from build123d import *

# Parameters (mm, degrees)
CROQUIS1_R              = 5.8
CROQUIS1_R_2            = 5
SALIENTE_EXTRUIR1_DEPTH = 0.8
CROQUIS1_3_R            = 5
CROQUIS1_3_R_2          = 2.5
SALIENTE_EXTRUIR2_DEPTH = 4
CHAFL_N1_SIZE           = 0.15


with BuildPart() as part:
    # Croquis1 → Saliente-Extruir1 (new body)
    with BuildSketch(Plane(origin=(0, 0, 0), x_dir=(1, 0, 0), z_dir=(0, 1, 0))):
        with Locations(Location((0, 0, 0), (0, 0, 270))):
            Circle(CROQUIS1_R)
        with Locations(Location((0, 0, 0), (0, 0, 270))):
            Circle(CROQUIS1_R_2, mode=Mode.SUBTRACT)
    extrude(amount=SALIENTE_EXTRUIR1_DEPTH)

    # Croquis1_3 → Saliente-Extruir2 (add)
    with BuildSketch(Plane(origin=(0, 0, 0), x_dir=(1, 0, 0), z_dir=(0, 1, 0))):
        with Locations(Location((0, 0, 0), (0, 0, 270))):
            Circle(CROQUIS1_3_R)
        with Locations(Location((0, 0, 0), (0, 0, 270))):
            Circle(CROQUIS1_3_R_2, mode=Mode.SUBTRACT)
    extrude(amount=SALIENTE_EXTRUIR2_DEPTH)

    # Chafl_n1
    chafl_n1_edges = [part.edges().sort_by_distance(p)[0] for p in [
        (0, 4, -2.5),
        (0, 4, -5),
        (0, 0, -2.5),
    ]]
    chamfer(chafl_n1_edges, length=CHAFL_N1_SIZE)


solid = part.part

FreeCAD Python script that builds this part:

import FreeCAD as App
import Part
import Sketcher


def edges_at(feature, points):
    """Names of the edges that pass closest to the given points."""
    edges = feature.Shape.Edges
    near = lambda p: min(range(len(edges)), key=lambda i: edges[i].distToShape(Part.Vertex(*p))[0])
    return sorted({f"Edge{near(p) + 1}" for p in points})

doc = App.newDocument("Part")
body = doc.addObject("PartDesign::Body", "Body")

sketch1 = body.newObject("Sketcher::SketchObject", "Sketch")
sketch1.AttachmentSupport = (doc.getObject("XZ_Plane"), [""])
sketch1.MapMode = "FlatFace"
sketch1.addGeometry([
    Part.Circle(App.Vector(0, 0, 0), App.Vector(0, 0, 1), 6),
    Part.Circle(App.Vector(0, 0, 0), App.Vector(0, 0, 1), 5),
], False)
sketch1.addConstraint([
    Sketcher.Constraint("Coincident", 0, 3, -1, 1),
    Sketcher.Constraint("Coincident", 1, 3, -1, 1),
    Sketcher.Constraint("Diameter", 1, 10.0),
    Sketcher.Constraint("Diameter", 0, 11.6),
])
pad1 = body.newObject("PartDesign::Pad", "Pad")
pad1.Profile = sketch1
pad1.Length = 0.8
pad1.Reversed = True

sketch2 = body.newObject("Sketcher::SketchObject", "Sketch001")
sketch2.AttachmentSupport = (doc.getObject("XZ_Plane"), [""])
sketch2.MapMode = "FlatFace"
sketch2.addGeometry([
    Part.Circle(App.Vector(0, 0, 0), App.Vector(0, 0, 1), 5),
    Part.Circle(App.Vector(0, 0, 0), App.Vector(0, 0, 1), 2.5),
], False)
sketch2.addConstraint([
    Sketcher.Constraint("Coincident", 0, 3, -1, 1),
    Sketcher.Constraint("Coincident", 1, 3, -1, 1),
    Sketcher.Constraint("Diameter", 0, 10.0),
    Sketcher.Constraint("Diameter", 1, 5.0),
])
pad2 = body.newObject("PartDesign::Pad", "Pad001")
pad2.Profile = sketch2
pad2.Length = 4
pad2.Reversed = True
doc.recompute()

chamfer = body.newObject("PartDesign::Chamfer", "Chamfer")
chamfer.Base = (pad2, edges_at(pad2, [(0, 4, -2.5), (0, 4, -5), (0, 0, -2.5)]))
chamfer.Size = 0.15

doc.recompute()
